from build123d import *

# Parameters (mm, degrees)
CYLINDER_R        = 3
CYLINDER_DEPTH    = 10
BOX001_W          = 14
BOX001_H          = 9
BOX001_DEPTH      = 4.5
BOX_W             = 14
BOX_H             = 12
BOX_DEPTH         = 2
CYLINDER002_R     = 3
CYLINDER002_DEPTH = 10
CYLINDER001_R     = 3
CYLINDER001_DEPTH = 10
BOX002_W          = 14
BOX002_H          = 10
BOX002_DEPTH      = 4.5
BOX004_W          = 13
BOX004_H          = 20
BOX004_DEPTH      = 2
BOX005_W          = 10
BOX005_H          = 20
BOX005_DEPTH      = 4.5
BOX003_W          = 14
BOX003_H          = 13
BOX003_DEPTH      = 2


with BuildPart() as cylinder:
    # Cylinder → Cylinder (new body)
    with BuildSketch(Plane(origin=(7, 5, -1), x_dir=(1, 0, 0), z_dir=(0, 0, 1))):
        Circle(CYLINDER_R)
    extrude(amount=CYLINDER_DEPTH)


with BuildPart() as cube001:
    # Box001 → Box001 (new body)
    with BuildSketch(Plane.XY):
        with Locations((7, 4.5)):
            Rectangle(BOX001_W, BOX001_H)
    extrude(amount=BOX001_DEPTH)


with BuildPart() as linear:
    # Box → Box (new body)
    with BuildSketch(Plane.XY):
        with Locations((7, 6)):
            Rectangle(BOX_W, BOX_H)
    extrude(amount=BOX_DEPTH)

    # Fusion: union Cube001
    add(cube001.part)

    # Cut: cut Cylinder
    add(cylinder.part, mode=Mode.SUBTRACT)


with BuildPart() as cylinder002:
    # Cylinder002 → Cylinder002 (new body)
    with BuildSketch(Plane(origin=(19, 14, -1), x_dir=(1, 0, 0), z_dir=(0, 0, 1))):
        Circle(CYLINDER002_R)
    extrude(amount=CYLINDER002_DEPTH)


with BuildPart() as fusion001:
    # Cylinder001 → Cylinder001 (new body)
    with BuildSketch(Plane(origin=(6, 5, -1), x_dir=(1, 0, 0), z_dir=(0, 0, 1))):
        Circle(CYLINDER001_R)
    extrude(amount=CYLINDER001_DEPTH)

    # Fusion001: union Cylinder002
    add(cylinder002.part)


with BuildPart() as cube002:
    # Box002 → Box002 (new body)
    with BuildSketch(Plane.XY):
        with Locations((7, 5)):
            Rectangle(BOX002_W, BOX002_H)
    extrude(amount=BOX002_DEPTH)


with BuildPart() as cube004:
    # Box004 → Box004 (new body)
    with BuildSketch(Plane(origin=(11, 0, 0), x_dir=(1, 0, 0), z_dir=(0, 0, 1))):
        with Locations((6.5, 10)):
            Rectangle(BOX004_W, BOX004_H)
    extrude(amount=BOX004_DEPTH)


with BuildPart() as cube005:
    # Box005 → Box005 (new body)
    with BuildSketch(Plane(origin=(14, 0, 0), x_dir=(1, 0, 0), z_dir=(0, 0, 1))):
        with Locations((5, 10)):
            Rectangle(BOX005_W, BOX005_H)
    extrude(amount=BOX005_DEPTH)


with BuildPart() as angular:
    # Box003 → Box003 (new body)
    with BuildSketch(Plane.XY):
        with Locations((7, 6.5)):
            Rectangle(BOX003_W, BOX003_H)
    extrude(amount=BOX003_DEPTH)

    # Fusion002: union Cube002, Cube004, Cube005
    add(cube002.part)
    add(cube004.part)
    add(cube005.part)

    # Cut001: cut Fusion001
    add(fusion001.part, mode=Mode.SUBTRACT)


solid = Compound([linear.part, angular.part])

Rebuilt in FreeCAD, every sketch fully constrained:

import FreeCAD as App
import Part
import Sketcher
from FreeCAD import Vector
Q = App.Units.Quantity


def add_polygon(sketch, points):
    """Adds a closed chain of lines whose ends are joined by coincident constraints."""
    first, n = sketch.GeometryCount, len(points)
    for a, b in zip(points, points[1:] + points[:1]):
        sketch.addGeometry(Part.LineSegment(App.Vector(*a, 0), App.Vector(*b, 0)), False)
    for i in range(n):
        sketch.addConstraint(Sketcher.Constraint("Coincident", first + i, 2, first + (i + 1) % n, 1))

doc = App.newDocument("Part")
body = doc.addObject("PartDesign::Body", "Body")

# Sketch on XY plane
sketch1 = doc.addObject("Sketcher::SketchObject", "Sketch")
body.addObject(sketch1)
sketch1.AttachmentSupport = (doc.XY_Plane, [""])
sketch1.MapMode = "FlatFace"
sketch1.AttachmentOffset = App.Placement(Vector(0, 0, -1), App.Rotation())
sketch1.addGeometry(Part.Circle(Vector(7, 5, 0), Vector(0, 0, 1), 3), False)
sketch1.addConstraint(Sketcher.Constraint("Diameter", 0, Q("6 mm")))
sketch1.addConstraint(Sketcher.Constraint("DistanceX", -1, 1, 0, 3, Q("7 mm")))
sketch1.addConstraint(Sketcher.Constraint("DistanceY", -1, 1, 0, 3, Q("5 mm")))
pad1 = doc.addObject("PartDesign::Pad", "Pad")
body.addObject(pad1)
pad1.Profile = sketch1
pad1.Length = 10
body2 = doc.addObject("PartDesign::Body", "Body001")

# Sketch on XY plane
sketch2 = doc.addObject("Sketcher::SketchObject", "Sketch001")
body2.addObject(sketch2)
sketch2.AttachmentSupport = (doc.getObject("XY_Plane001"), [""])
sketch2.MapMode = "FlatFace"
add_polygon(sketch2, [(0, 9), (0, 0), (14, 0), (14, 9)])  # lines 0-3
sketch2.addConstraint(Sketcher.Constraint("Vertical", 0))
sketch2.addConstraint(Sketcher.Constraint("Horizontal", 1))
sketch2.addConstraint(Sketcher.Constraint("Vertical", 2))
sketch2.addConstraint(Sketcher.Constraint("Horizontal", 3))
sketch2.addConstraint(Sketcher.Constraint("Coincident", 0, 2, -1, 1))
sketch2.addConstraint(Sketcher.Constraint("DistanceX", 1, 1, 1, 2, Q("14 mm")))
sketch2.addConstraint(Sketcher.Constraint("DistanceY", 0, 2, 0, 1, Q("9 mm")))
pad2 = doc.addObject("PartDesign::Pad", "Pad001")
body2.addObject(pad2)
pad2.Profile = sketch2
pad2.Length = 4.5
body3 = doc.addObject("PartDesign::Body", "Body002")

# Sketch on XY plane
sketch3 = doc.addObject("Sketcher::SketchObject", "Sketch002")
body3.addObject(sketch3)
sketch3.AttachmentSupport = (doc.getObject("XY_Plane002"), [""])
sketch3.MapMode = "FlatFace"
add_polygon(sketch3, [(0, 12), (0, 0), (14, 0), (14, 12)])  # lines 0-3
sketch3.addConstraint(Sketcher.Constraint("Vertical", 0))
sketch3.addConstraint(Sketcher.Constraint("Horizontal", 1))
sketch3.addConstraint(Sketcher.Constraint("Vertical", 2))
sketch3.addConstraint(Sketcher.Constraint("Horizontal", 3))
sketch3.addConstraint(Sketcher.Constraint("Coincident", 0, 2, -1, 1))
sketch3.addConstraint(Sketcher.Constraint("DistanceX", 1, 1, 1, 2, Q("14 mm")))
sketch3.addConstraint(Sketcher.Constraint("DistanceY", 0, 2, 0, 1, Q("12 mm")))
pad3 = doc.addObject("PartDesign::Pad", "Pad002")
body3.addObject(pad3)
pad3.Profile = sketch3
pad3.Length = 2
doc.recompute()

boolean = doc.addObject("PartDesign::Boolean", "Boolean")
body3.addObject(boolean)
boolean.Type = "Fuse"
boolean.addObjects([body2])
doc.recompute()

boolean2 = doc.addObject("PartDesign::Boolean", "Boolean001")
body3.addObject(boolean2)
boolean2.Type = "Cut"
boolean2.addObjects([body])
body4 = doc.addObject("PartDesign::Body", "Body003")

# Sketch on XY plane
sketch4 = doc.addObject("Sketcher::SketchObject", "Sketch003")
body4.addObject(sketch4)
sketch4.AttachmentSupport = (doc.getObject("XY_Plane003"), [""])
sketch4.MapMode = "FlatFace"
sketch4.AttachmentOffset = App.Placement(Vector(0, 0, -1), App.Rotation())
sketch4.addGeometry(Part.Circle(Vector(19, 14, 0), Vector(0, 0, 1), 3), False)
sketch4.addConstraint(Sketcher.Constraint("Diameter", 0, Q("6 mm")))
sketch4.addConstraint(Sketcher.Constraint("DistanceX", -1, 1, 0, 3, Q("19 mm")))
sketch4.addConstraint(Sketcher.Constraint("DistanceY", -1, 1, 0, 3, Q("14 mm")))
pad4 = doc.addObject("PartDesign::Pad", "Pad003")
body4.addObject(pad4)
pad4.Profile = sketch4
pad4.Length = 10
body5 = doc.addObject("PartDesign::Body", "Body004")
body5.AllowCompound = True

# Sketch on XY plane
sketch5 = doc.addObject("Sketcher::SketchObject", "Sketch004")
body5.addObject(sketch5)
sketch5.AttachmentSupport = (doc.getObject("XY_Plane004"), [""])
sketch5.MapMode = "FlatFace"
sketch5.AttachmentOffset = App.Placement(Vector(0, 0, -1), App.Rotation())
sketch5.addGeometry(Part.Circle(Vector(6, 5, 0), Vector(0, 0, 1), 3), False)
sketch5.addConstraint(Sketcher.Constraint("Diameter", 0, Q("6 mm")))
sketch5.addConstraint(Sketcher.Constraint("DistanceX", -1, 1, 0, 3, Q("6 mm")))
sketch5.addConstraint(Sketcher.Constraint("DistanceY", -1, 1, 0, 3, Q("5 mm")))
pad5 = doc.addObject("PartDesign::Pad", "Pad004")
body5.addObject(pad5)
pad5.Profile = sketch5
pad5.Length = 10
doc.recompute()

boolean3 = doc.addObject("PartDesign::Boolean", "Boolean002")
body5.addObject(boolean3)
boolean3.Type = "Fuse"
boolean3.addObjects([body4])
body6 = doc.addObject("PartDesign::Body", "Body005")

# Sketch on XY plane
sketch6 = doc.addObject("Sketcher::SketchObject", "Sketch005")
body6.addObject(sketch6)
sketch6.AttachmentSupport = (doc.getObject("XY_Plane005"), [""])
sketch6.MapMode = "FlatFace"
add_polygon(sketch6, [(0, 10), (0, 0), (14, 0), (14, 10)])  # lines 0-3
sketch6.addConstraint(Sketcher.Constraint("Vertical", 0))
sketch6.addConstraint(Sketcher.Constraint("Horizontal", 1))
sketch6.addConstraint(Sketcher.Constraint("Vertical", 2))
sketch6.addConstraint(Sketcher.Constraint("Horizontal", 3))
sketch6.addConstraint(Sketcher.Constraint("Coincident", 0, 2, -1, 1))
sketch6.addConstraint(Sketcher.Constraint("DistanceX", 1, 1, 1, 2, Q("14 mm")))
sketch6.addConstraint(Sketcher.Constraint("DistanceY", 0, 2, 0, 1, Q("10 mm")))
pad6 = doc.addObject("PartDesign::Pad", "Pad005")
body6.addObject(pad6)
pad6.Profile = sketch6
pad6.Length = 4.5
body7 = doc.addObject("PartDesign::Body", "Body006")

# Sketch on XY plane
sketch7 = doc.addObject("Sketcher::SketchObject", "Sketch006")
body7.addObject(sketch7)
sketch7.AttachmentSupport = (doc.getObject("XY_Plane006"), [""])
sketch7.MapMode = "FlatFace"
add_polygon(sketch7, [(11, 20), (11, 0), (24, 0), (24, 20)])  # lines 0-3
sketch7.addConstraint(Sketcher.Constraint("Vertical", 0))
sketch7.addConstraint(Sketcher.Constraint("Horizontal", 1))
sketch7.addConstraint(Sketcher.Constraint("Vertical", 2))
sketch7.addConstraint(Sketcher.Constraint("Horizontal", 3))
sketch7.addConstraint(Sketcher.Constraint("PointOnObject", 0, 2, -1))
sketch7.addConstraint(Sketcher.Constraint("DistanceX", 1, 1, 1, 2, Q("13 mm")))
sketch7.addConstraint(Sketcher.Constraint("DistanceY", 0, 2, 0, 1, Q("20 mm")))
sketch7.addConstraint(Sketcher.Constraint("DistanceX", -1, 1, 0, 2, Q("11 mm")))
pad7 = doc.addObject("PartDesign::Pad", "Pad006")
body7.addObject(pad7)
pad7.Profile = sketch7
pad7.Length = 2
body8 = doc.addObject("PartDesign::Body", "Body007")

# Sketch on XY plane
sketch8 = doc.addObject("Sketcher::SketchObject", "Sketch007")
body8.addObject(sketch8)
sketch8.AttachmentSupport = (doc.getObject("XY_Plane007"), [""])
sketch8.MapMode = "FlatFace"
add_polygon(sketch8, [(14, 20), (14, 0), (24, 0), (24, 20)])  # lines 0-3
sketch8.addConstraint(Sketcher.Constraint("Vertical", 0))
sketch8.addConstraint(Sketcher.Constraint("Horizontal", 1))
sketch8.addConstraint(Sketcher.Constraint("Vertical", 2))
sketch8.addConstraint(Sketcher.Constraint("Horizontal", 3))
sketch8.addConstraint(Sketcher.Constraint("PointOnObject", 0, 2, -1))
sketch8.addConstraint(Sketcher.Constraint("DistanceX", 1, 1, 1, 2, Q("10 mm")))
sketch8.addConstraint(Sketcher.Constraint("DistanceY", 0, 2, 0, 1, Q("20 mm")))
sketch8.addConstraint(Sketcher.Constraint("DistanceX", -1, 1, 0, 2, Q("14 mm")))
pad8 = doc.addObject("PartDesign::Pad", "Pad007")
body8.addObject(pad8)
pad8.Profile = sketch8
pad8.Length = 4.5
body9 = doc.addObject("PartDesign::Body", "Body008")

# Sketch on XY plane
sketch9 = doc.addObject("Sketcher::SketchObject", "Sketch008")
body9.addObject(sketch9)
sketch9.AttachmentSupport = (doc.getObject("XY_Plane008"), [""])
sketch9.MapMode = "FlatFace"
add_polygon(sketch9, [(0, 13), (0, 0), (14, 0), (14, 13)])  # lines 0-3
sketch9.addConstraint(Sketcher.Constraint("Vertical", 0))
sketch9.addConstraint(Sketcher.Constraint("Horizontal", 1))
sketch9.addConstraint(Sketcher.Constraint("Vertical", 2))
sketch9.addConstraint(Sketcher.Constraint("Horizontal", 3))
sketch9.addConstraint(Sketcher.Constraint("Coincident", 0, 2, -1, 1))
sketch9.addConstraint(Sketcher.Constraint("DistanceX", 1, 1, 1, 2, Q("14 mm")))
sketch9.addConstraint(Sketcher.Constraint("DistanceY", 0, 2, 0, 1, Q("13 mm")))
pad9 = doc.addObject("PartDesign::Pad", "Pad008")
body9.addObject(pad9)
pad9.Profile = sketch9
pad9.Length = 2
doc.recompute()

boolean4 = doc.addObject("PartDesign::Boolean", "Boolean003")
body9.addObject(boolean4)
boolean4.Type = "Fuse"
boolean4.addObjects([body6])
doc.recompute()

boolean5 = doc.addObject("PartDesign::Boolean", "Boolean004")
body9.addObject(boolean5)
boolean5.Type = "Fuse"
boolean5.addObjects([body7])
doc.recompute()

boolean6 = doc.addObject("PartDesign::Boolean", "Boolean005")
body9.addObject(boolean6)
boolean6.Type = "Fuse"
boolean6.addObjects([body8])
doc.recompute()

boolean7 = doc.addObject("PartDesign::Boolean", "Boolean006")
body9.addObject(boolean7)
boolean7.Type = "Cut"
boolean7.addObjects([body5])

doc.recompute()
